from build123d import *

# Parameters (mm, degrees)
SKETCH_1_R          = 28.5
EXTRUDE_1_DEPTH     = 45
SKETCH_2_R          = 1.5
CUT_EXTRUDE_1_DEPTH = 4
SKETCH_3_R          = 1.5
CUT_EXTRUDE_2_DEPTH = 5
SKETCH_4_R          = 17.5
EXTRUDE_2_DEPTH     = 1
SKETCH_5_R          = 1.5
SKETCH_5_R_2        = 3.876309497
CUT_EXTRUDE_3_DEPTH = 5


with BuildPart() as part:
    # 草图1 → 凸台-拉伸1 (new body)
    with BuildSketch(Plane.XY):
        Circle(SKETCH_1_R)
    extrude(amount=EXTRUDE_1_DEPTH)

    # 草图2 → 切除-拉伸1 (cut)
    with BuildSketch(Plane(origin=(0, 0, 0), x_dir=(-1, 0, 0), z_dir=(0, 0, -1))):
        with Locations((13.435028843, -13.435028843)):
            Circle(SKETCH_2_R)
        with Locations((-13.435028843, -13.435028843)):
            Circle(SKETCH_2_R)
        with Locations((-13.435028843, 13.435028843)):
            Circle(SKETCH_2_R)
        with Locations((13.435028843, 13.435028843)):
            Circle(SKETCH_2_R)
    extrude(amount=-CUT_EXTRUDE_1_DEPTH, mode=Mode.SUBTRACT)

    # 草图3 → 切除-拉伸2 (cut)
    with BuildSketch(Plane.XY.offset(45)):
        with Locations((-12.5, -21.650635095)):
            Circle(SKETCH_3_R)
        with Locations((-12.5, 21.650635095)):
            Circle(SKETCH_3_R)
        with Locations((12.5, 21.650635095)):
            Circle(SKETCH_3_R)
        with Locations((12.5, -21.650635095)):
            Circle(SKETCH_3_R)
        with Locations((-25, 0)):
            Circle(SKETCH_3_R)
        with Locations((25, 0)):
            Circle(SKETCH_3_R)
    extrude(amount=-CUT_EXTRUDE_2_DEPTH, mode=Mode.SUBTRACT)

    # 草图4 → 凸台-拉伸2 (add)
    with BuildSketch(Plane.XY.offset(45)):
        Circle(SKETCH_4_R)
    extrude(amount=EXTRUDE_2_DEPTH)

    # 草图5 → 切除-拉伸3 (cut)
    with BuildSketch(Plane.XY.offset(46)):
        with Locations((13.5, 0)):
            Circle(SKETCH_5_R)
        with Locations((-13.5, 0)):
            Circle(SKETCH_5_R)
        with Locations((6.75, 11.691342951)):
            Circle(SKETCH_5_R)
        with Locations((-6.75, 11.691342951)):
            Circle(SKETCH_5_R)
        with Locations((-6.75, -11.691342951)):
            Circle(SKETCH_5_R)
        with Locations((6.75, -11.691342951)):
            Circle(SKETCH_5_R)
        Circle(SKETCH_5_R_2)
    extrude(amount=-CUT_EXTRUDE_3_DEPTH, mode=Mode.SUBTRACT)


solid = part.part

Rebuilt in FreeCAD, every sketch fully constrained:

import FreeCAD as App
import Part
import Sketcher
Q = App.Units.Quantity

doc = App.newDocument("Part")
body = doc.addObject("PartDesign::Body", "Body")

sketch1 = body.newObject("Sketcher::SketchObject", "Sketch")
sketch1.AttachmentSupport = (doc.getObject("XY_Plane"), [""])
sketch1.MapMode = "FlatFace"
sketch1.addGeometry(Part.Circle(App.Vector(0, 0, 0), App.Vector(0, 0, 1), 28), False)
sketch1.addConstraint([
    Sketcher.Constraint("Coincident", 0, 3, -1, 1),
    Sketcher.Constraint("Diameter", 0, Q("57 mm")),
])
pad1 = body.newObject("PartDesign::Pad", "Pad")
pad1.Profile = sketch1
pad1.Length = 45

sketch2 = body.newObject("Sketcher::SketchObject", "Sketch001")
sketch2.AttachmentSupport = (doc.getObject("XY_Plane"), [""])
sketch2.MapMode = "FlatFace"
sketch2.addGeometry([
    Part.Circle(App.Vector(-13.4, -13.4, 0), App.Vector(0, 0, 1), 1.5),
    Part.Circle(App.Vector(13.4, -13.4, 0), App.Vector(0, 0, 1), 1.5),
    Part.Circle(App.Vector(13.4, 13.4, 0), App.Vector(0, 0, 1), 1.5),
    Part.Circle(App.Vector(-13.4, 13.4, 0), App.Vector(0, 0, 1), 1.5),
], False)
sketch2.addConstraint([
    Sketcher.Constraint("Equal", 0, 1),
    Sketcher.Constraint("Equal", 1, 2),
    Sketcher.Constraint("Equal", 2, 3),
    Sketcher.Constraint("Symmetric", 0, 3, 2, 3, -1, 1),
    Sketcher.Constraint("Symmetric", 1, 3, 3, 3, -1, 1),
    Sketcher.Constraint("Symmetric", 0, 3, 1, 3, -2),
    Sketcher.Constraint("Diameter", 0, Q("3 mm")),
    Sketcher.Constraint("DistanceX", 0, 3, -1, 1, Q("13.435029 mm")),
    Sketcher.Constraint("DistanceY", 0, 3, -1, 1, Q("13.435029 mm")),
])
pocket1 = body.newObject("PartDesign::Pocket", "Pocket")
pocket1.Profile = sketch2
pocket1.Length = 4
pocket1.Reversed = True

sketch3 = body.newObject("Sketcher::SketchObject", "Sketch002")
sketch3.AttachmentSupport = (doc.getObject("XY_Plane"), [""])
sketch3.MapMode = "FlatFace"
sketch3.AttachmentOffset = App.Placement(App.Vector(0, 0, 45), App.Rotation())
sketch3.addGeometry([
    Part.Circle(App.Vector(-12.5, -21.7, 0), App.Vector(0, 0, 1), 1.5),
    Part.Circle(App.Vector(-12.5, 21.7, 0), App.Vector(0, 0, 1), 1.5),
    Part.Circle(App.Vector(12.5, 21.7, 0), App.Vector(0, 0, 1), 1.5),
    Part.Circle(App.Vector(12.5, -21.7, 0), App.Vector(0, 0, 1), 1.5),
    Part.Circle(App.Vector(-25, 0, 0), App.Vector(0, 0, 1), 1.5),
    Part.Circle(App.Vector(25, 0, 0), App.Vector(0, 0, 1), 1.5),
], False)
sketch3.addConstraint([
    Sketcher.Constraint("Equal", 0, 1),
    Sketcher.Constraint("Equal", 1, 2),
    Sketcher.Constraint("Equal", 2, 3),
    Sketcher.Constraint("Equal", 3, 4),
    Sketcher.Constraint("Equal", 4, 5),
    Sketcher.Constraint("Symmetric", 0, 3, 2, 3, -1, 1),
    Sketcher.Constraint("Symmetric", 1, 3, 3, 3, -1, 1),
    Sketcher.Constraint("Symmetric", 4, 3, 5, 3, -1, 1),
    Sketcher.Constraint("Symmetric", 1, 3, 2, 3, -2),
    Sketcher.Constraint("PointOnObject", 4, 3, -1),
    Sketcher.Constraint("Diameter", 0, Q("3 mm")),
    Sketcher.Constraint("DistanceX", 4, 3, -1, 1, Q("25 mm")),
    Sketcher.Constraint("DistanceX", 1, 3, 2, 3, Q("25 mm")),
    Sketcher.Constraint("DistanceY", 0, 3, 1, 3, Q("43.30127 mm")),
])
pocket2 = body.newObject("PartDesign::Pocket", "Pocket001")
pocket2.Profile = sketch3
pocket2.Length = 5

sketch4 = body.newObject("Sketcher::SketchObject", "Sketch003")
sketch4.AttachmentSupport = (doc.getObject("XY_Plane"), [""])
sketch4.MapMode = "FlatFace"
sketch4.AttachmentOffset = App.Placement(App.Vector(0, 0, 45), App.Rotation())
sketch4.addGeometry(Part.Circle(App.Vector(0, 0, 0), App.Vector(0, 0, 1), 18), False)
sketch4.addConstraint([
    Sketcher.Constraint("Coincident", 0, 3, -1, 1),
    Sketcher.Constraint("Diameter", 0, Q("35 mm")),
])
pad2 = body.newObject("PartDesign::Pad", "Pad001")
pad2.Profile = sketch4
pad2.Length = 1

sketch5 = body.newObject("Sketcher::SketchObject", "Sketch004")
sketch5.AttachmentSupport = (doc.getObject("XY_Plane"), [""])
sketch5.MapMode = "FlatFace"
sketch5.AttachmentOffset = App.Placement(App.Vector(0, 0, 46), App.Rotation())
sketch5.addGeometry([
    Part.Circle(App.Vector(13.5, 0, 0), App.Vector(0, 0, 1), 1.5),
    Part.Circle(App.Vector(-13.5, 0, 0), App.Vector(0, 0, 1), 1.5),
    Part.Circle(App.Vector(6.8, 11.7, 0), App.Vector(0, 0, 1), 1.5),
    Part.Circle(App.Vector(-6.8, 11.7, 0), App.Vector(0, 0, 1), 1.5),
    Part.Circle(App.Vector(-6.8, -11.7, 0), App.Vector(0, 0, 1), 1.5),
    Part.Circle(App.Vector(6.8, -11.7, 0), App.Vector(0, 0, 1), 1.5),
    Part.Circle(App.Vector(0, 0, 0), App.Vector(0, 0, 1), 3.9),
], False)
sketch5.addConstraint([
    Sketcher.Constraint("Coincident", 6, 3, -1, 1),
    Sketcher.Constraint("Equal", 0, 1),
    Sketcher.Constraint("Equal", 1, 2),
    Sketcher.Constraint("Equal", 2, 3),
    Sketcher.Constraint("Equal", 3, 4),
    Sketcher.Constraint("Equal", 4, 5),
    Sketcher.Constraint("Symmetric", 0, 3, 1, 3, -1, 1),
    Sketcher.Constraint("Symmetric", 2, 3, 4, 3, -1, 1),
    Sketcher.Constraint("Symmetric", 3, 3, 5, 3, -1, 1),
    Sketcher.Constraint("Symmetric", 2, 3, 3, 3, -2),
    Sketcher.Constraint("PointOnObject", 0, 3, -1),
    Sketcher.Constraint("Diameter", 0, Q("3 mm")),
    Sketcher.Constraint("DistanceX", 1, 3, 0, 3, Q("27 mm")),
    Sketcher.Constraint("DistanceX", 3, 3, 2, 3, Q("13.5 mm")),
    Sketcher.Constraint("Diameter", 6, Q("7.752619 mm")),
    Sketcher.Constraint("DistanceY", -1, 1, 2, 3, Q("11.691343 mm")),
])
pocket3 = body.newObject("PartDesign::Pocket", "Pocket002")
pocket3.Profile = sketch5
pocket3.Length = 5

doc.recompute()
